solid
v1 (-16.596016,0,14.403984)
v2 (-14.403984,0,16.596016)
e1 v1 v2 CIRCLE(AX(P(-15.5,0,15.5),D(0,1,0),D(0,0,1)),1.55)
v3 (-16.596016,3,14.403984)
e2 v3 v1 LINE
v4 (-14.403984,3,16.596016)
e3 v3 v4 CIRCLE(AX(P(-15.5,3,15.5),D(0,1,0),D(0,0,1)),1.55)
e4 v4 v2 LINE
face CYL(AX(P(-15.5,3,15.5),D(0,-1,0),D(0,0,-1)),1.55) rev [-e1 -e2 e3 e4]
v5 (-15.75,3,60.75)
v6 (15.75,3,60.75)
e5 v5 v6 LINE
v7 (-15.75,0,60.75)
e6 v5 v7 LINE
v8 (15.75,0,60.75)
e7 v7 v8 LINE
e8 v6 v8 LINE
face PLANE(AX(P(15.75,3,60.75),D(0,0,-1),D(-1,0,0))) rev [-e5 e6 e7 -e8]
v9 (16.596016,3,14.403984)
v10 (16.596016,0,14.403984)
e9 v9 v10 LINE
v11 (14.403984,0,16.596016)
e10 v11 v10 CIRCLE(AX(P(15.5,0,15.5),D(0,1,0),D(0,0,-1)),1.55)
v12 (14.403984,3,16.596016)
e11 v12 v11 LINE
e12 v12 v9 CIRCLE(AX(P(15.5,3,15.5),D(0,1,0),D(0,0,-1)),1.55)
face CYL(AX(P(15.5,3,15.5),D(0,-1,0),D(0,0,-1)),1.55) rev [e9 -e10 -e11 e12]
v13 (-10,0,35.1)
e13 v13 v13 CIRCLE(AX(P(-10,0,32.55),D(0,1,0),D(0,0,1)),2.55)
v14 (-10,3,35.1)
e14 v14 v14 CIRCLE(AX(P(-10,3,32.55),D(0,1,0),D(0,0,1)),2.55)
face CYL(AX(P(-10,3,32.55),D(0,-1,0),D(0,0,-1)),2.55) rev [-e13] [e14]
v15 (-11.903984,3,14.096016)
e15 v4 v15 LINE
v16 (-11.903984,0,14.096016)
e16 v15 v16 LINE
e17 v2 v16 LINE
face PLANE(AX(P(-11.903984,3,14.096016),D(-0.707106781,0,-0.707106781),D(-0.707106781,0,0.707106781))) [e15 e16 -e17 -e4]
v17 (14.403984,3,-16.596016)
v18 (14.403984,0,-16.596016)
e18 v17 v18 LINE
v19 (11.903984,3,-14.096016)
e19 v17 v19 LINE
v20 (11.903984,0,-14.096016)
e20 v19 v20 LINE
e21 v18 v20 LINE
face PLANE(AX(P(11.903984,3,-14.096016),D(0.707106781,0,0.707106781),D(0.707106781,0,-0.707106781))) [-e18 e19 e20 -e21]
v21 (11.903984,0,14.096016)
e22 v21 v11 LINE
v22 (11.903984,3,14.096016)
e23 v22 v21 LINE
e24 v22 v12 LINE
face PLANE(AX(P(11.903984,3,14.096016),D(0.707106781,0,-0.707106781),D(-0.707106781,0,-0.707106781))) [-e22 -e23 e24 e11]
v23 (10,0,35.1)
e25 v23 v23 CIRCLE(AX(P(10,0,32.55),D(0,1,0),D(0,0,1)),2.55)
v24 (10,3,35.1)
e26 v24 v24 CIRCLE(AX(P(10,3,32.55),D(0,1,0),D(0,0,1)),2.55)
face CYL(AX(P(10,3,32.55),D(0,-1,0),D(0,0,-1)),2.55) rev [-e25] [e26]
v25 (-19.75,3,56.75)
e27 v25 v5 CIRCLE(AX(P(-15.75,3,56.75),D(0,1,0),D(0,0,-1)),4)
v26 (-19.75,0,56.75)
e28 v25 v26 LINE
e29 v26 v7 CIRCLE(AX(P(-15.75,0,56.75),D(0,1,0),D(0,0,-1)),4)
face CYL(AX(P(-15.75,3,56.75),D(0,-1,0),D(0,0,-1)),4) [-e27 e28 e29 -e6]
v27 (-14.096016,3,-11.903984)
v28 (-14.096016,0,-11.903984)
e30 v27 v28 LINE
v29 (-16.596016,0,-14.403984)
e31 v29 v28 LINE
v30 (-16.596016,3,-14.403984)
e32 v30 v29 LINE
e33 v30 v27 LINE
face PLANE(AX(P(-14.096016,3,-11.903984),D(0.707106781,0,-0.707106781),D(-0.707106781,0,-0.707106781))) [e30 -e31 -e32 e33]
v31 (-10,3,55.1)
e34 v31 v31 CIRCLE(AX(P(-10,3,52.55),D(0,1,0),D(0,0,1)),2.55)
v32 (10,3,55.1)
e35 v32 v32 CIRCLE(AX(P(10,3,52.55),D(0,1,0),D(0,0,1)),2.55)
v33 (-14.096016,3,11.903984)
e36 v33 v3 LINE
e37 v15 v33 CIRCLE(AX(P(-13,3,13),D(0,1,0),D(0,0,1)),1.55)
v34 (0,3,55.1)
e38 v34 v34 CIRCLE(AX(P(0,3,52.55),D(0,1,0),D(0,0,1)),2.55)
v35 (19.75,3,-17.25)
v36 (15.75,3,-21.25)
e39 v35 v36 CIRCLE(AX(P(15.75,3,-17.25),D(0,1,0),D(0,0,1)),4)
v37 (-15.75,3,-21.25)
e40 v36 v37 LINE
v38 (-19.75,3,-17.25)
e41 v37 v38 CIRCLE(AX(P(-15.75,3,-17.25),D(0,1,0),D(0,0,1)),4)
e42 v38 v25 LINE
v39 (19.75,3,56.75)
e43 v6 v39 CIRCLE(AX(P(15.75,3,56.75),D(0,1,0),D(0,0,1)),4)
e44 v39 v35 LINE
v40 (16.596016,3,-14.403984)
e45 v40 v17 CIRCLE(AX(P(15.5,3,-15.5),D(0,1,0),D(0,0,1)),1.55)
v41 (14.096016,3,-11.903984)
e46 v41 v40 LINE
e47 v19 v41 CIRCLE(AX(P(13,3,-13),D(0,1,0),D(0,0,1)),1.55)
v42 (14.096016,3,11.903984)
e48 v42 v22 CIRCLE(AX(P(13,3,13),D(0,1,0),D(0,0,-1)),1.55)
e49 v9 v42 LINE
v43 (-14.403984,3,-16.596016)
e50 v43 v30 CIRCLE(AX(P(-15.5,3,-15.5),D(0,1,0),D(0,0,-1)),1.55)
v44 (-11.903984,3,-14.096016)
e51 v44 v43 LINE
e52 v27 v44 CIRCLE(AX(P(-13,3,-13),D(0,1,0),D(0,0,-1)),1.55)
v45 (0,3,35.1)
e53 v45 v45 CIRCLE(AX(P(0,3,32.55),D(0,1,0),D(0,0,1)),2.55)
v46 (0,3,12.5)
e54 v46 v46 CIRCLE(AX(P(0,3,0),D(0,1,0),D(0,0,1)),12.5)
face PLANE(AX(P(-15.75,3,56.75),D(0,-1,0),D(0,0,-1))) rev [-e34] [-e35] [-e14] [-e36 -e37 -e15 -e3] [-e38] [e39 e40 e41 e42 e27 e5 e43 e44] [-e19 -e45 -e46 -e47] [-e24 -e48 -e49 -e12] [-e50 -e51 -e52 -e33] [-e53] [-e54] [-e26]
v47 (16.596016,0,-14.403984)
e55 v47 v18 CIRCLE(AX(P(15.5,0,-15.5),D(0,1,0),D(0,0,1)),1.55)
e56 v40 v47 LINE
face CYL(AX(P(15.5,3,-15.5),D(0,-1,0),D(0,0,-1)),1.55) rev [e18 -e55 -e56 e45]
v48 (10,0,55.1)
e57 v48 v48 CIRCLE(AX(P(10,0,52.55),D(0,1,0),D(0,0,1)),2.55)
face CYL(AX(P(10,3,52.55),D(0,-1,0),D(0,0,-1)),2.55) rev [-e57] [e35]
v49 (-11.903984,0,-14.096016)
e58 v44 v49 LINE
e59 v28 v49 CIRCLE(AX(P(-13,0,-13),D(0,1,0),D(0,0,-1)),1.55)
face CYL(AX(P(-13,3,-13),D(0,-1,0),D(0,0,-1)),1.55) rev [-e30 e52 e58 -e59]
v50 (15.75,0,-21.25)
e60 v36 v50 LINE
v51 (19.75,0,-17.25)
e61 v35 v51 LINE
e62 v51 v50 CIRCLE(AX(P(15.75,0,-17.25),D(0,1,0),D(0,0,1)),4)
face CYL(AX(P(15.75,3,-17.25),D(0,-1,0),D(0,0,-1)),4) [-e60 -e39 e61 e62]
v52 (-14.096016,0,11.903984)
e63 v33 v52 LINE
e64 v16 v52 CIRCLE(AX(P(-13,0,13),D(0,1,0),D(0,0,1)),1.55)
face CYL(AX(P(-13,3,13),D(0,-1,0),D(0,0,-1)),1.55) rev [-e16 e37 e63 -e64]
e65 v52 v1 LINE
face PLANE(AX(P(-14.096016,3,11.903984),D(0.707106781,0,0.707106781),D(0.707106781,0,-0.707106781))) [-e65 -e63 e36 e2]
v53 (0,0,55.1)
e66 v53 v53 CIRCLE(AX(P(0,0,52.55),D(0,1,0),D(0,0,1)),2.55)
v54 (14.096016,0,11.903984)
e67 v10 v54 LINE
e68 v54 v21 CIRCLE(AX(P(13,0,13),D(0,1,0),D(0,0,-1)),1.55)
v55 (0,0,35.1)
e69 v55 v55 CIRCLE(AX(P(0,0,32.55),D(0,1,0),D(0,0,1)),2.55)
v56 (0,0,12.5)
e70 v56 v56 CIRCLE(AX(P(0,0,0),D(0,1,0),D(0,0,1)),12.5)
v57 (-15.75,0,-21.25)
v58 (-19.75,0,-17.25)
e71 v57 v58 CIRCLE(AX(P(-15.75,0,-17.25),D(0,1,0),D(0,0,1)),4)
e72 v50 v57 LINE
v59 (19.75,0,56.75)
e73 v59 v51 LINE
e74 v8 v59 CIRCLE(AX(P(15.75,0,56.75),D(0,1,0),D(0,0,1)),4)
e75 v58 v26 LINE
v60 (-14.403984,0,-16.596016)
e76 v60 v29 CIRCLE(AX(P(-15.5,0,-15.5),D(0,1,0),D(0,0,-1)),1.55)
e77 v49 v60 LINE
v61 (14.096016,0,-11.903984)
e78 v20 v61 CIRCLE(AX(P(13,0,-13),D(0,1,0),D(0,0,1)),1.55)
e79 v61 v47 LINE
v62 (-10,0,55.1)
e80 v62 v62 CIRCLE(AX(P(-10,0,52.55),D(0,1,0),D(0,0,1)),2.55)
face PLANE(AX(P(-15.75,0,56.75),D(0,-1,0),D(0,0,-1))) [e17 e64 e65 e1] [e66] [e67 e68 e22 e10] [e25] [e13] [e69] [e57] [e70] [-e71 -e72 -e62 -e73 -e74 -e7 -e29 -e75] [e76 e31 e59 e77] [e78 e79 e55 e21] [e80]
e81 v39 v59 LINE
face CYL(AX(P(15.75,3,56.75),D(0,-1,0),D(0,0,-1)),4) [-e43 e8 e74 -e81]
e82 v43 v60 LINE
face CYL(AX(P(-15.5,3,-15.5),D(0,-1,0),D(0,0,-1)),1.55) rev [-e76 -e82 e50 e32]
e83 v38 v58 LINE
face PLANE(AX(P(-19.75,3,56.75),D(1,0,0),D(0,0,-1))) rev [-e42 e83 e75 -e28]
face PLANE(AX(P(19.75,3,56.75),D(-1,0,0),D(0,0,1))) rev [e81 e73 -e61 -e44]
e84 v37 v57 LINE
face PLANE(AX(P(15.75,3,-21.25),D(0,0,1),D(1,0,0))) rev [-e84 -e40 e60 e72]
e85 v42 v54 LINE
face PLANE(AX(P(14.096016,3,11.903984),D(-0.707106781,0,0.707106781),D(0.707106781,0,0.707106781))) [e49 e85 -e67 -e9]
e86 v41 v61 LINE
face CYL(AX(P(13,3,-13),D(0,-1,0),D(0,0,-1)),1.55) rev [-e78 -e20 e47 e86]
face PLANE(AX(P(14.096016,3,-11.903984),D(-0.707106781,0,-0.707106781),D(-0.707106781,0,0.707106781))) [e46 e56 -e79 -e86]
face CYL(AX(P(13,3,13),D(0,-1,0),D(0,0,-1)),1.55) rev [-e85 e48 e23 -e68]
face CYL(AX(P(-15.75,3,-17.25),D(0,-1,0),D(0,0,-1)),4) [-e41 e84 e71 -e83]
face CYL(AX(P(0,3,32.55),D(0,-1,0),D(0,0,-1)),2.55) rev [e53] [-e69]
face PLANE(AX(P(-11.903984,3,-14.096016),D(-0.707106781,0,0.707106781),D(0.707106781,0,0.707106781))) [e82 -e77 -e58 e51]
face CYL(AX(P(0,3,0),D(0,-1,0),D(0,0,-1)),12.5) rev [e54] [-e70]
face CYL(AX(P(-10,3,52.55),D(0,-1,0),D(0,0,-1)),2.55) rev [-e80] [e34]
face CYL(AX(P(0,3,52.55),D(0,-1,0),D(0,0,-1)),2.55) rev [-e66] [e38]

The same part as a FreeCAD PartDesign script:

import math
import FreeCAD as App
import Part
import Sketcher

V = App.Vector

doc = App.newDocument("Part")
body = doc.addObject("PartDesign::Body", "Body")

sketch1 = body.newObject("Sketcher::SketchObject", "Sketch")
sketch1.AttachmentSupport = (doc.getObject("XZ_Plane"), [""])
sketch1.MapMode = "FlatFace"
sketch1.addGeometry(Part.LineSegment(V(-15.8, 60.8, 0), V(15.8, 60.8, 0)), False)
sketch1.addGeometry(Part.ArcOfCircle(Part.Circle(V(15.8, 56.8, 0), V(0, 0, 1), 4), math.radians(0), math.radians(90)), False)
sketch1.addGeometry(Part.LineSegment(V(19.8, 56.8, 0), V(19.8, -17.2, 0)), False)
sketch1.addGeometry(Part.ArcOfCircle(Part.Circle(V(15.8, -17.3, 0), V(0, 0, 1), 4), math.radians(-90), math.radians(0)), False)
sketch1.addGeometry(Part.LineSegment(V(15.8, -21.2, 0), V(-15.8, -21.2, 0)), False)
sketch1.addGeometry(Part.ArcOfCircle(Part.Circle(V(-15.8, -17.3, 0), V(0, 0, 1), 4), math.radians(180), math.radians(270)), False)
sketch1.addGeometry(Part.LineSegment(V(-19.8, -17.2, 0), V(-19.8, 56.8, 0)), False)
sketch1.addGeometry(Part.ArcOfCircle(Part.Circle(V(-15.8, 56.8, 0), V(0, 0, 1), 4), math.radians(90), math.radians(180)), False)
sketch1.addGeometry(Part.Circle(V(10, 52.5, 0), V(0, 0, 1), 2.5), False)
sketch1.addGeometry(Part.Circle(V(10, 32.5, 0), V(0, 0, 1), 2.5), False)
sketch1.addGeometry(Part.Circle(V(0, 52.5, 0), V(0, 0, 1), 2.5), False)
sketch1.addGeometry(Part.Circle(V(-10, 52.5, 0), V(0, 0, 1), 2.5), False)
sketch1.addGeometry(Part.Circle(V(0, 32.5, 0), V(0, 0, 1), 2.5), False)
sketch1.addGeometry(Part.Circle(V(-10, 32.5, 0), V(0, 0, 1), 2.5), False)
sketch1.addGeometry(Part.ArcOfCircle(Part.Circle(V(13, 13, 0), V(0, 0, 1), 1.6), math.radians(135), math.radians(315)), False)
sketch1.addGeometry(Part.LineSegment(V(14.1, 11.9, 0), V(16.6, 14.4, 0)), False)
sketch1.addGeometry(Part.ArcOfCircle(Part.Circle(V(15.5, 15.5, 0), V(0, 0, 1), 1.6), math.radians(-45), math.radians(135)), False)
sketch1.addGeometry(Part.LineSegment(V(14.4, 16.6, 0), V(11.9, 14.1, 0)), False)
sketch1.addGeometry(Part.LineSegment(V(11.9, -14.1, 0), V(14.4, -16.6, 0)), False)
sketch1.addGeometry(Part.ArcOfCircle(Part.Circle(V(15.5, -15.5, 0), V(0, 0, 1), 1.6), math.radians(-135), math.radians(45)), False)
sketch1.addGeometry(Part.LineSegment(V(16.6, -14.4, 0), V(14.1, -11.9, 0)), False)
sketch1.addGeometry(Part.ArcOfCircle(Part.Circle(V(13, -13, 0), V(0, 0, 1), 1.6), math.radians(45), math.radians(225)), False)
sketch1.addGeometry(Part.LineSegment(V(-11.9, 14.1, 0), V(-14.4, 16.6, 0)), False)
sketch1.addGeometry(Part.ArcOfCircle(Part.Circle(V(-15.5, 15.5, 0), V(0, 0, 1), 1.6), math.radians(45), math.radians(225)), False)
sketch1.addGeometry(Part.LineSegment(V(-16.6, 14.4, 0), V(-14.1, 11.9, 0)), False)
sketch1.addGeometry(Part.ArcOfCircle(Part.Circle(V(-13, 13, 0), V(0, 0, 1), 1.6), math.radians(-135), math.radians(45)), False)
sketch1.addGeometry(Part.Circle(V(0, 0, 0), V(0, 0, 1), 12.5), False)
sketch1.addGeometry(Part.ArcOfCircle(Part.Circle(V(-13, -13, 0), V(0, 0, 1), 1.6), math.radians(-45), math.radians(135)), False)
sketch1.addGeometry(Part.LineSegment(V(-14.1, -11.9, 0), V(-16.6, -14.4, 0)), False)
sketch1.addGeometry(Part.ArcOfCircle(Part.Circle(V(-15.5, -15.5, 0), V(0, 0, 1), 1.6), math.radians(135), math.radians(315)), False)
sketch1.addGeometry(Part.LineSegment(V(-14.4, -16.6, 0), V(-11.9, -14.1, 0)), False)
sketch1.addConstraint(Sketcher.Constraint("Tangent", 0, 2, 1, 2))
sketch1.addConstraint(Sketcher.Constraint("Tangent", 1, 1, 2, 1))
sketch1.addConstraint(Sketcher.Constraint("Tangent", 2, 2, 3, 2))
sketch1.addConstraint(Sketcher.Constraint("Tangent", 3, 1, 4, 1))
sketch1.addConstraint(Sketcher.Constraint("Tangent", 4, 2, 5, 2))
sketch1.addConstraint(Sketcher.Constraint("Tangent", 5, 1, 6, 1))
sketch1.addConstraint(Sketcher.Constraint("Tangent", 6, 2, 7, 2))
sketch1.addConstraint(Sketcher.Constraint("Tangent", 7, 1, 0, 1))
sketch1.addConstraint(Sketcher.Constraint("Tangent", 14, 2, 15, 1))
sketch1.addConstraint(Sketcher.Constraint("Tangent", 15, 2, 16, 1))
sketch1.addConstraint(Sketcher.Constraint("Tangent", 16, 2, 17, 1))
sketch1.addConstraint(Sketcher.Constraint("Tangent", 17, 2, 14, 1))
sketch1.addConstraint(Sketcher.Constraint("Tangent", 18, 2, 19, 1))
sketch1.addConstraint(Sketcher.Constraint("Tangent", 19, 2, 20, 1))
sketch1.addConstraint(Sketcher.Constraint("Tangent", 20, 2, 21, 1))
sketch1.addConstraint(Sketcher.Constraint("Tangent", 21, 2, 18, 1))
sketch1.addConstraint(Sketcher.Constraint("Tangent", 22, 2, 23, 1))
sketch1.addConstraint(Sketcher.Constraint("Tangent", 23, 2, 24, 1))
sketch1.addConstraint(Sketcher.Constraint("Tangent", 24, 2, 25, 1))
sketch1.addConstraint(Sketcher.Constraint("Tangent", 25, 2, 22, 1))
sketch1.addConstraint(Sketcher.Constraint("Tangent", 27, 2, 28, 1))
sketch1.addConstraint(Sketcher.Constraint("Tangent", 28, 2, 29, 1))
sketch1.addConstraint(Sketcher.Constraint("Tangent", 29, 2, 30, 1))
sketch1.addConstraint(Sketcher.Constraint("Tangent", 30, 2, 27, 1))
sketch1.addConstraint(Sketcher.Constraint("Horizontal", 0))
sketch1.addConstraint(Sketcher.Constraint("Vertical", 2))
sketch1.addConstraint(Sketcher.Constraint("Horizontal", 4))
sketch1.addConstraint(Sketcher.Constraint("Vertical", 6))
sketch1.addConstraint(Sketcher.Constraint("Coincident", 26, 3, -1, 1))
sketch1.addConstraint(Sketcher.Constraint("Equal", 1, 3))
sketch1.addConstraint(Sketcher.Constraint("Equal", 3, 5))
sketch1.addConstraint(Sketcher.Constraint("Equal", 5, 7))
sketch1.addConstraint(Sketcher.Constraint("Equal", 8, 9))
sketch1.addConstraint(Sketcher.Constraint("Equal", 9, 10))
sketch1.addConstraint(Sketcher.Constraint("Equal", 10, 11))
sketch1.addConstraint(Sketcher.Constraint("Equal", 11, 12))
sketch1.addConstraint(Sketcher.Constraint("Equal", 12, 13))
sketch1.addConstraint(Sketcher.Constraint("Equal", 14, 16))
sketch1.addConstraint(Sketcher.Constraint("Equal", 16, 19))
sketch1.addConstraint(Sketcher.Constraint("Equal", 19, 21))
sketch1.addConstraint(Sketcher.Constraint("Equal", 21, 23))
sketch1.addConstraint(Sketcher.Constraint("Equal", 23, 25))
sketch1.addConstraint(Sketcher.Constraint("Equal", 25, 27))
sketch1.addConstraint(Sketcher.Constraint("Equal", 27, 29))
sketch1.addConstraint(Sketcher.Constraint("Symmetric", 19, 3, 23, 3, -1, 1))
sketch1.addConstraint(Sketcher.Constraint("Symmetric", 21, 3, 25, 3, -1, 1))
sketch1.addConstraint(Sketcher.Constraint("Symmetric", 14, 3, 27, 3, -1, 1))
sketch1.addConstraint(Sketcher.Constraint("Symmetric", 16, 3, 29, 3, -1, 1))
sketch1.addConstraint(Sketcher.Constraint("Symmetric", 8, 3, 11, 3, -2))
sketch1.addConstraint(Sketcher.Constraint("Symmetric", 9, 3, 13, 3, -2))
sketch1.addConstraint(Sketcher.Constraint("Symmetric", 16, 3, 23, 3, -2))
sketch1.addConstraint(Sketcher.Constraint("Symmetric", 14, 3, 25, 3, -2))
sketch1.addConstraint(Sketcher.Constraint("PointOnObject", 10, 3, -2))
sketch1.addConstraint(Sketcher.Constraint("PointOnObject", 12, 3, -2))
sketch1.addConstraint(Sketcher.Constraint("Perpendicular", 17, 18))
sketch1.addConstraint(Sketcher.Constraint("Horizontal", 8, 3, 10, 3))
sketch1.addConstraint(Sketcher.Constraint("Horizontal", 9, 3, 12, 3))
sketch1.addConstraint(Sketcher.Constraint("Vertical", 8, 3, 9, 3))
sketch1.addConstraint(Sketcher.Constraint("Diameter", 26, 25.0))
sketch1.addConstraint(Sketcher.Constraint("Radius", 1, 4.0))
sketch1.addConstraint(Sketcher.Constraint("Diameter", 8, 5.1))
sketch1.addConstraint(Sketcher.Constraint("DistanceY", 2, 2, 2, 1, 74.0))
sketch1.addConstraint(Sketcher.Constraint("Radius", 14, 1.55))
sketch1.addConstraint(Sketcher.Constraint("DistanceX", 0, 1, 0, 2, 31.5))
sketch1.addConstraint(Sketcher.Constraint("DistanceX", -1, 1, 8, 3, 10.0))
sketch1.addConstraint(Sketcher.Constraint("DistanceX", -1, 1, 14, 3, 13.0))
sketch1.addConstraint(Sketcher.Constraint("DistanceY", -1, 1, 14, 3, 13.0))
sketch1.addConstraint(Sketcher.Constraint("DistanceY", 9, 3, 8, 3, 20.0))
sketch1.addConstraint(Sketcher.Constraint("DistanceY", 19, 3, 16, 3, 31.0))
sketch1.addConstraint(Sketcher.Constraint("DistanceY", 8, 3, 1, 3, 4.2))
sketch1.addConstraint(Sketcher.Constraint("DistanceX", -1, 1, 1, 3, 15.75))
sketch1.addConstraint(Sketcher.Constraint("DistanceY", -1, 1, 1, 3, 56.75))
pad1 = body.newObject("PartDesign::Pad", "Pad")
pad1.Profile = sketch1
pad1.Length = 3
pad1.Reversed = True

doc.recompute()
